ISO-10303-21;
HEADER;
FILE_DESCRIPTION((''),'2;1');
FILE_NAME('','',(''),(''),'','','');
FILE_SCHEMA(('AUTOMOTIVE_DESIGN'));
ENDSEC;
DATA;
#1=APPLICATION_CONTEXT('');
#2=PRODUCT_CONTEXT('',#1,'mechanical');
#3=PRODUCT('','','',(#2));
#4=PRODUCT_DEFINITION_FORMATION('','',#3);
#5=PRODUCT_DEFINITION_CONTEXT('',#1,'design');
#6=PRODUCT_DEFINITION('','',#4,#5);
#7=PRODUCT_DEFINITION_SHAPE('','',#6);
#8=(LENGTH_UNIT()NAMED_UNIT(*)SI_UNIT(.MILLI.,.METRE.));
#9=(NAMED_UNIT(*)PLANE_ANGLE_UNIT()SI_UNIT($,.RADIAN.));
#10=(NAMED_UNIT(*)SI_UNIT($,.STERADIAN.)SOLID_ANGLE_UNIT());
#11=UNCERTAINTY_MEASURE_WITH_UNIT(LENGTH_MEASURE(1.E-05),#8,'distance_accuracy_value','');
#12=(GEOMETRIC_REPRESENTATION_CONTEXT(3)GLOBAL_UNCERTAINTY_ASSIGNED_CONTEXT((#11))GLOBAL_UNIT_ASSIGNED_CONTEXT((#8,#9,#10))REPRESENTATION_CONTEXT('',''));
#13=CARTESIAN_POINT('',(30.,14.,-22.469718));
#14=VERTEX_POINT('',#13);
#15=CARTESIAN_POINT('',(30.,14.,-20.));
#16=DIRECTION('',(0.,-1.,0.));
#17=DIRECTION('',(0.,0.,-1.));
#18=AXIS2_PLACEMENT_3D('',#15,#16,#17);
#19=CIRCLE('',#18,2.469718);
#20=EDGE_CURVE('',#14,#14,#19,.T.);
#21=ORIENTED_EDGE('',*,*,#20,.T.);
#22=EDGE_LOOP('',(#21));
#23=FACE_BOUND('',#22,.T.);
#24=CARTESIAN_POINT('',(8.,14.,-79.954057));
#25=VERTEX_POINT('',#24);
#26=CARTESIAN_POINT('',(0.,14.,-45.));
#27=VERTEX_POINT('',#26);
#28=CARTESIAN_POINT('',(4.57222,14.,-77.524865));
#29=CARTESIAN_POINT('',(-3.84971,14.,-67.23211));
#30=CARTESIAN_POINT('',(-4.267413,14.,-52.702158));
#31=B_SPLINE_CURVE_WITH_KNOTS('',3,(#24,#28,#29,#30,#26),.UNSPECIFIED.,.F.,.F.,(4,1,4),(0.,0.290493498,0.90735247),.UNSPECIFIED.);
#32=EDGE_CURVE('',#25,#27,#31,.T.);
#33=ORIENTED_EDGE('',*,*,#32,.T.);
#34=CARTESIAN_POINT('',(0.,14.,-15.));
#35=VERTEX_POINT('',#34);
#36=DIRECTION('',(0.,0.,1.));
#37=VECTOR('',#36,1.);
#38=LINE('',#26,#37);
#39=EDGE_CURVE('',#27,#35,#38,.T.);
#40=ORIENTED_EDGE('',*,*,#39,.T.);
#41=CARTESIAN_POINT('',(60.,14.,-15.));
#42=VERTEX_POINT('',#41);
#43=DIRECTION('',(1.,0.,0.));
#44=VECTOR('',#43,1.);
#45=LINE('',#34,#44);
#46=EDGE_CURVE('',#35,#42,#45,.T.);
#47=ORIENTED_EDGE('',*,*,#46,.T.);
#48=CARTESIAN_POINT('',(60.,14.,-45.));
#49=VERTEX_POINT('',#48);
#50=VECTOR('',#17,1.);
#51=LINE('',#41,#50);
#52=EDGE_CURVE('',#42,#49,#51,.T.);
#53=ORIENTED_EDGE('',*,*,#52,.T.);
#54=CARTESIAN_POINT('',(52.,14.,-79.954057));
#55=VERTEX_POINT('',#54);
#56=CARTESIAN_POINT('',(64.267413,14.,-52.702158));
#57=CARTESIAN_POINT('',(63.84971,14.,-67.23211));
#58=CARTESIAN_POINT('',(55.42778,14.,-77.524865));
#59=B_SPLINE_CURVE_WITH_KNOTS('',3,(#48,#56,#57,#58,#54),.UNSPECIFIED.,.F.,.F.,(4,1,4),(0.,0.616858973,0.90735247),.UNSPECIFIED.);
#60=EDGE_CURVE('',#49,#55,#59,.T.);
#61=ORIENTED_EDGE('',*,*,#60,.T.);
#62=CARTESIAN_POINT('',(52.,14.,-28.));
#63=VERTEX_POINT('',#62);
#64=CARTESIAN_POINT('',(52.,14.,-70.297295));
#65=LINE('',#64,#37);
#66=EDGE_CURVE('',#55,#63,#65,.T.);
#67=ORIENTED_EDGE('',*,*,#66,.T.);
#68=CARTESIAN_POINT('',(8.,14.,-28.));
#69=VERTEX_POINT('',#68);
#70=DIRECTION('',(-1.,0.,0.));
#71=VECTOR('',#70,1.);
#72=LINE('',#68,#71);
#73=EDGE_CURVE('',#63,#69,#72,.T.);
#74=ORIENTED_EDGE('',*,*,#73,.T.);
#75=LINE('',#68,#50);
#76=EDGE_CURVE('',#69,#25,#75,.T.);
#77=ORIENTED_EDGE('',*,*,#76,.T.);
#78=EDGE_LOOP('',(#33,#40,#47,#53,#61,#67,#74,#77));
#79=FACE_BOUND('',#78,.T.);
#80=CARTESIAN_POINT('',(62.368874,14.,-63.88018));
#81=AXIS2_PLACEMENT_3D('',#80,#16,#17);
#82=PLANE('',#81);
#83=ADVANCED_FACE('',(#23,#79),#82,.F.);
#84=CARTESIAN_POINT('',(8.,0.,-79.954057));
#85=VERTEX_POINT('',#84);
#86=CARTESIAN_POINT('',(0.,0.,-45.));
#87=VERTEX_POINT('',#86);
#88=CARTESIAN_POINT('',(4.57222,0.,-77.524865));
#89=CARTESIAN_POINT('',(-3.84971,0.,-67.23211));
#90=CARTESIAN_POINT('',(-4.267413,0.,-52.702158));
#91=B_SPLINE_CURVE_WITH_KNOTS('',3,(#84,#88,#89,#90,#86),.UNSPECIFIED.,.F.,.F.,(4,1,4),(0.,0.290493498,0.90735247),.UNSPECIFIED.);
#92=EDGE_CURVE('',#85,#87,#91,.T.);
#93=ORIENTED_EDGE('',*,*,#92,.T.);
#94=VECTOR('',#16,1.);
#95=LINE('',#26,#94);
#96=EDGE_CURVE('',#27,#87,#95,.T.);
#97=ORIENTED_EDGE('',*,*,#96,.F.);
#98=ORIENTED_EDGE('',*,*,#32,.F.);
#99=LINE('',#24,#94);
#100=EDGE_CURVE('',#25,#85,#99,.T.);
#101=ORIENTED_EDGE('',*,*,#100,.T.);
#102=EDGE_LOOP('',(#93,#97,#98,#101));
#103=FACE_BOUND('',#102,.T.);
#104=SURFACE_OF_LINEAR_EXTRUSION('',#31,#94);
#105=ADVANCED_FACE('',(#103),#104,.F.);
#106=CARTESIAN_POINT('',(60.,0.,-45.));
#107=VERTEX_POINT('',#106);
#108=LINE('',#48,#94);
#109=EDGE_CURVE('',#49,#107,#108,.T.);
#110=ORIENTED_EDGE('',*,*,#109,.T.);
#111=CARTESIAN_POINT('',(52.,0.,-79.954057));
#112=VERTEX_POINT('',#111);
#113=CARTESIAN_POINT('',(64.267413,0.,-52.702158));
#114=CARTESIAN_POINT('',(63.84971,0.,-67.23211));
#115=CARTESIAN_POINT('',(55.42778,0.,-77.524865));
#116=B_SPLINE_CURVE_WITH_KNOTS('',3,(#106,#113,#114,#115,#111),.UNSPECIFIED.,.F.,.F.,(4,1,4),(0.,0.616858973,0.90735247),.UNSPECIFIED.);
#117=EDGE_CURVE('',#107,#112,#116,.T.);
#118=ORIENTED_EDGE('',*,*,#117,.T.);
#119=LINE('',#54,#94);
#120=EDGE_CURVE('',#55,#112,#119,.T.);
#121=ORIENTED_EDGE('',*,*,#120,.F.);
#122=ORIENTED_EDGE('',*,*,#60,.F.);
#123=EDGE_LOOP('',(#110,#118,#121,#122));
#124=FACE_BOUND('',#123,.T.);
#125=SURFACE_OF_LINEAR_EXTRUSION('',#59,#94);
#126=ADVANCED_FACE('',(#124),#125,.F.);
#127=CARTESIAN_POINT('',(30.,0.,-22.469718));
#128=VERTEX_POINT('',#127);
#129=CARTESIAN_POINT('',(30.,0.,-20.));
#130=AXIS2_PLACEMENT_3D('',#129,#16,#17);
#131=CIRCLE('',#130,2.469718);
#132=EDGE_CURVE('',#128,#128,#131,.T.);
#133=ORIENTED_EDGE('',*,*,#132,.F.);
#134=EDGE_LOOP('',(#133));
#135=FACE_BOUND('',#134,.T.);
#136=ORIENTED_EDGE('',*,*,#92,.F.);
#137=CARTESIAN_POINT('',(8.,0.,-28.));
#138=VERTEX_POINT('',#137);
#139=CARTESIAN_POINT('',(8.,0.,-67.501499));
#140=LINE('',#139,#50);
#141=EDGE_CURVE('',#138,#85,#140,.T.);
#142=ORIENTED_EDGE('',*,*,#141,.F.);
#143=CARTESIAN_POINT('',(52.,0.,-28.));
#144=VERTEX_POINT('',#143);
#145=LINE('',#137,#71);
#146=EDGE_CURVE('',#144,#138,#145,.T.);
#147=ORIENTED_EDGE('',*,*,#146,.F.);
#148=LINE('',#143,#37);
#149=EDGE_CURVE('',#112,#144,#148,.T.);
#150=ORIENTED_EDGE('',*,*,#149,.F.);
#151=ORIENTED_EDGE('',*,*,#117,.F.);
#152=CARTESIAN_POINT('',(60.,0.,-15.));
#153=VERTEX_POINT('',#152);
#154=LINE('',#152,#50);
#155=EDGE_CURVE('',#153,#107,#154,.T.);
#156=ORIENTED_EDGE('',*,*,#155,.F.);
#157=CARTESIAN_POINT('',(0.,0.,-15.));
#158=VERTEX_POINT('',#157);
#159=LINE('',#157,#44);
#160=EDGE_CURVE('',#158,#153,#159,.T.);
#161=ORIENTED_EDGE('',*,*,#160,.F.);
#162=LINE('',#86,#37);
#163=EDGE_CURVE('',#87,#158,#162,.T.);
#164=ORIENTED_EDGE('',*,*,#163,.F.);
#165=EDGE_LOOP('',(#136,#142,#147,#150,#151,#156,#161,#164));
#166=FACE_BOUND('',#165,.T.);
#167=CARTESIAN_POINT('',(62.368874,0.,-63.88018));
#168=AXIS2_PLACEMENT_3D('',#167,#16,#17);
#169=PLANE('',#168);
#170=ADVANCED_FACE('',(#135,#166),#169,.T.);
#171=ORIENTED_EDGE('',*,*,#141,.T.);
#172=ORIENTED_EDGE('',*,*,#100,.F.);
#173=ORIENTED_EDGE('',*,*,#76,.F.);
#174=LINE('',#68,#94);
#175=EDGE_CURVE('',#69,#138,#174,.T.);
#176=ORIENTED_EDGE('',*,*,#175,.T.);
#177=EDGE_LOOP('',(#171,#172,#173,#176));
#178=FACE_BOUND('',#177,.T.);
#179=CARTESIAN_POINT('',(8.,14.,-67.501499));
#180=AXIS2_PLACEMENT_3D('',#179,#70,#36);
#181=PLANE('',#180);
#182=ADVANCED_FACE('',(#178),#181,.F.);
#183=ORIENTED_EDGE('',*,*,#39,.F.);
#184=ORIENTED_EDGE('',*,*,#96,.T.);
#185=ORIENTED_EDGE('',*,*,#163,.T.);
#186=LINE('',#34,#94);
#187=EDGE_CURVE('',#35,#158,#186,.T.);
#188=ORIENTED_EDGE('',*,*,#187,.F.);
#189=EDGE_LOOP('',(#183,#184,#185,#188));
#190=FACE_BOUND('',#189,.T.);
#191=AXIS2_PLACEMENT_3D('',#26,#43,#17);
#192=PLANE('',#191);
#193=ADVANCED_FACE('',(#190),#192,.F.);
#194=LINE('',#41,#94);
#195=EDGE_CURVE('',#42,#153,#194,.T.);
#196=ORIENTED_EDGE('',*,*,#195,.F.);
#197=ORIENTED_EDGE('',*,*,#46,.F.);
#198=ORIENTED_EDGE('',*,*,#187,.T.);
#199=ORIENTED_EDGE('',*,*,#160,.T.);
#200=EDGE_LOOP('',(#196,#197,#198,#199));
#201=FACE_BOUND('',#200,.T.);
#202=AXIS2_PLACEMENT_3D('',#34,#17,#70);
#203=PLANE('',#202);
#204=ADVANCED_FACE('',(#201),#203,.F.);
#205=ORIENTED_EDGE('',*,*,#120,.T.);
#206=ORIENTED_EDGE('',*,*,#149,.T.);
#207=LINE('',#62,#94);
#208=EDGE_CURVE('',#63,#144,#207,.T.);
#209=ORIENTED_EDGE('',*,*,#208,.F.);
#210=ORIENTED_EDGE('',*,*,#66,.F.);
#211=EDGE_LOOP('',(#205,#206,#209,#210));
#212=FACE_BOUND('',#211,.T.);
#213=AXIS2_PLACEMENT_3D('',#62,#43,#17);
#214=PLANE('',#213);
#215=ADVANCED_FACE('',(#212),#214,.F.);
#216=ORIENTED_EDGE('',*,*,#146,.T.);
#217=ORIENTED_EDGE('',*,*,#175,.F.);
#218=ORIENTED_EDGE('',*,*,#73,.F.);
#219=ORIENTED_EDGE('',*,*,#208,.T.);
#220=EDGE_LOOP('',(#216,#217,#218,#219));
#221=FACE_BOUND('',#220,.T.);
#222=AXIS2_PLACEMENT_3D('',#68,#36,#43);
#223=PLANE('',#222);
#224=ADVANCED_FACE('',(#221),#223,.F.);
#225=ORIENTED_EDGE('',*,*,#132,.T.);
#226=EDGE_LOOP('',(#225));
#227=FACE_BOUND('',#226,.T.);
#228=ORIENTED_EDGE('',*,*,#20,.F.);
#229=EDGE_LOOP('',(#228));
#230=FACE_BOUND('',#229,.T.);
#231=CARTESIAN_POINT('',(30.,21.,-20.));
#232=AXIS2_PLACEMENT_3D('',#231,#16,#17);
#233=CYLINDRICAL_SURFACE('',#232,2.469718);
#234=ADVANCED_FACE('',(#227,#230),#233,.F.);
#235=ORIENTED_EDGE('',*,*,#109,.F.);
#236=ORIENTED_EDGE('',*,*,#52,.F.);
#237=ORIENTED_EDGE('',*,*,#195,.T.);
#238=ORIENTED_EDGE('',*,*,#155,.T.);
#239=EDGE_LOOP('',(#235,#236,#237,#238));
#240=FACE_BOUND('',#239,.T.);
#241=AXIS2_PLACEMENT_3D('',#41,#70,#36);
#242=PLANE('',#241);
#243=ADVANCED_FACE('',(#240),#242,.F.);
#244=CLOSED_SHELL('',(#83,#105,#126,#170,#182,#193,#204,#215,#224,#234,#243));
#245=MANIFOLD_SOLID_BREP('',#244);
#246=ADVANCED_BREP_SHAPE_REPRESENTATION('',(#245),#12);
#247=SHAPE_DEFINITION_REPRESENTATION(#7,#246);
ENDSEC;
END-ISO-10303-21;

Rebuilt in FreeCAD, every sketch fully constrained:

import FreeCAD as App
import Part
import Sketcher

V = App.Vector

doc = App.newDocument("Part")
body = doc.addObject("PartDesign::Body", "Body")

# Sketch on XZ plane
sketch1 = body.newObject("Sketcher::SketchObject", "Sketch")
sketch1.AttachmentSupport = (doc.getObject("XZ_Plane"), [""])
sketch1.MapMode = "FlatFace"
sketch1.addGeometry(Part.BSplineCurve([V(0, -45, 0), V(-4.267413, -52.702158, 0), V(-3.84971, -67.23211, 0), V(4.57222, -77.524865, 0), V(8, -79.954057, 0)], [4, 1, 4], [0, 0.616858973, 0.90735247], False, 3, [1, 1, 1, 1, 1], False), False)
sketch1.addGeometry(Part.LineSegment(V(0, -45, 0), V(0, -15, 0)), False)
sketch1.addGeometry(Part.LineSegment(V(0, -15, 0), V(60, -15, 0)), False)
sketch1.addGeometry(Part.LineSegment(V(60, -15, 0), V(60, -45, 0)), False)
sketch1.addGeometry(Part.BSplineCurve([V(60, -45, 0), V(64.267413, -52.702158, 0), V(63.84971, -67.23211, 0), V(55.42778, -77.524865, 0), V(52, -79.954057, 0)], [4, 1, 4], [0, 0.616858973, 0.90735247], False, 3, [1, 1, 1, 1, 1], False), False)
sketch1.addGeometry(Part.LineSegment(V(52, -79.954057, 0), V(52, -28, 0)), False)
sketch1.addGeometry(Part.LineSegment(V(52, -28, 0), V(8, -28, 0)), False)
sketch1.addGeometry(Part.LineSegment(V(8, -28, 0), V(8, -79.954057, 0)), False)
sketch1.addConstraint(Sketcher.Constraint("Block", 0))
sketch1.addConstraint(Sketcher.Constraint("Block", 4))
sketch1.addConstraint(Sketcher.Constraint("Coincident", 0, 1, 1, 1))
sketch1.addConstraint(Sketcher.Constraint("Coincident", 1, 2, 2, 1))
sketch1.addConstraint(Sketcher.Constraint("Coincident", 2, 2, 3, 1))
sketch1.addConstraint(Sketcher.Constraint("Coincident", 3, 2, 4, 1))
sketch1.addConstraint(Sketcher.Constraint("Coincident", 4, 2, 5, 1))
sketch1.addConstraint(Sketcher.Constraint("Coincident", 5, 2, 6, 1))
sketch1.addConstraint(Sketcher.Constraint("Coincident", 6, 2, 7, 1))
sketch1.addConstraint(Sketcher.Constraint("Coincident", 7, 2, 0, 2))
sketch1.addConstraint(Sketcher.Constraint("Vertical", 1))
sketch1.addConstraint(Sketcher.Constraint("Horizontal", 2))
sketch1.addConstraint(Sketcher.Constraint("Vertical", 3))
sketch1.addConstraint(Sketcher.Constraint("Vertical", 5))
sketch1.addConstraint(Sketcher.Constraint("Horizontal", 6))
sketch1.addConstraint(Sketcher.Constraint("Vertical", 7))
sketch1.addConstraint(Sketcher.Constraint("DistanceY", 1, 1, 1, 2, 30.0))
sketch1.addConstraint(Sketcher.Constraint("DistanceY", 5, 2, -1, 1, 28.0))
pad1 = body.newObject("PartDesign::Pad", "Pad")
pad1.Profile = sketch1
pad1.Length = 14
pad1.Reversed = True

# Sketch on XZ plane
sketch2 = body.newObject("Sketcher::SketchObject", "Sketch001")
sketch2.AttachmentSupport = (doc.getObject("XZ_Plane"), [""])
sketch2.MapMode = "FlatFace"
sketch2.addGeometry(Part.Circle(V(30, -20, 0), V(0, 0, 1), 2.5), False)
sketch2.addConstraint(Sketcher.Constraint("DistanceX", -1, 1, 0, 3, 30.0))
sketch2.addConstraint(Sketcher.Constraint("DistanceY", 0, 3, -1, 1, 20.0))
sketch2.addConstraint(Sketcher.Constraint("Diameter", 0, 4.939436))
pocket1 = body.newObject("PartDesign::Pocket", "Pocket")
pocket1.Profile = sketch2
pocket1.Length = 21

doc.recompute()
